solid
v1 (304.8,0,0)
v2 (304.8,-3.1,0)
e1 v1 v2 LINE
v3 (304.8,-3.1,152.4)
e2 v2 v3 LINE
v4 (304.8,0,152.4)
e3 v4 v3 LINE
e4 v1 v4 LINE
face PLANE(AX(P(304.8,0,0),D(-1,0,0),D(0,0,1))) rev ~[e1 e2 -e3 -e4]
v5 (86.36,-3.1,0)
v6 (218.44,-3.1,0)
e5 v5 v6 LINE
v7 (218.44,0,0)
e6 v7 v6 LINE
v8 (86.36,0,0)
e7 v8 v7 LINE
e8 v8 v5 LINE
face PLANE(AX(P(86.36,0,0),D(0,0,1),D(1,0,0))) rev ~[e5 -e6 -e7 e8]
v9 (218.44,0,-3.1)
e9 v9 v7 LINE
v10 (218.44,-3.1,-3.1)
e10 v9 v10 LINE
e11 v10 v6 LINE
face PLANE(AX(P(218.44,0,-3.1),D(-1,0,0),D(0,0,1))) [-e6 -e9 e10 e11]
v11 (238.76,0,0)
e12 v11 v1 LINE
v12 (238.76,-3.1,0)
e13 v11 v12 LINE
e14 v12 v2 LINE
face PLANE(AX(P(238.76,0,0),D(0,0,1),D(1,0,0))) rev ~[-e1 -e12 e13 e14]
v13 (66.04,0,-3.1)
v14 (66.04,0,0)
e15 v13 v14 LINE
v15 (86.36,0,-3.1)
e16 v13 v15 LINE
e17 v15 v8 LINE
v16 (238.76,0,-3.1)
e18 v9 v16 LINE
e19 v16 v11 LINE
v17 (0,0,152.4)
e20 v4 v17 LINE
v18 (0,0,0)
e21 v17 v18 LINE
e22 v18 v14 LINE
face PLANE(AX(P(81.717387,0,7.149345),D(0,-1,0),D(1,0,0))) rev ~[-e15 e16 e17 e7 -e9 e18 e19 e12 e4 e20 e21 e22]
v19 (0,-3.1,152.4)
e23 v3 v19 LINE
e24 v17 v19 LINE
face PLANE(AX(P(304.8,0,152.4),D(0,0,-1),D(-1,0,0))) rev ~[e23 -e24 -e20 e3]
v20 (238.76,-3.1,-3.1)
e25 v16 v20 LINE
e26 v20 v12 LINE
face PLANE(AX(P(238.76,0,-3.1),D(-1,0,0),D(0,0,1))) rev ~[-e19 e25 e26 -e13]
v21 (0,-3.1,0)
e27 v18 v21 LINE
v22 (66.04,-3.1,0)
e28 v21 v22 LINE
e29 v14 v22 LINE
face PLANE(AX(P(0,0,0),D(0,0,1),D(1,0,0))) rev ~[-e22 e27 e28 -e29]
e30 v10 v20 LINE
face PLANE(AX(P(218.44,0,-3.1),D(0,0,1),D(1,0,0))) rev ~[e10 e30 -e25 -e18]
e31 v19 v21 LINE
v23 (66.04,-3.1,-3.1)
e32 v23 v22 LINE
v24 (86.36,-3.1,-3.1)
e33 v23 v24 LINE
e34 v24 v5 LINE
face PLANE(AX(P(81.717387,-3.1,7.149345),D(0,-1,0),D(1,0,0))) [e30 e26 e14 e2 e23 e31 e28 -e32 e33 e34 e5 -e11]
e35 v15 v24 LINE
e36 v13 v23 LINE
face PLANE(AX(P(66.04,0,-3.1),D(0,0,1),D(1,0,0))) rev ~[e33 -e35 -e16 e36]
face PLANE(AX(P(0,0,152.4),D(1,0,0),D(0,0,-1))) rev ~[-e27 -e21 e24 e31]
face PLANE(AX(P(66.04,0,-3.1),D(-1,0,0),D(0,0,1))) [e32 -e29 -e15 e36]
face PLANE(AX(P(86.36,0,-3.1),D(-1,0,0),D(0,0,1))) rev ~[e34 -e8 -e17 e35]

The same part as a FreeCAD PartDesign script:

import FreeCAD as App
import Part
import Sketcher
Q = App.Units.Quantity

doc = App.newDocument("Part")
body = doc.addObject("PartDesign::Body", "Body")

sketch1 = body.newObject("Sketcher::SketchObject", "Sketch")
sketch1.AttachmentSupport = (doc.getObject("XZ_Plane"), [""])
sketch1.MapMode = "FlatFace"
sketch1.addGeometry([
    Part.LineSegment(App.Vector(0, 0, 0), App.Vector(66.04, 0, 0)),
    Part.LineSegment(App.Vector(66.04, 0, 0), App.Vector(66.04, -3.1, 0)),
    Part.LineSegment(App.Vector(66.04, -3.1, 0), App.Vector(86.36, -3.1, 0)),
    Part.LineSegment(App.Vector(86.36, -3.1, 0), App.Vector(86.36, 0, 0)),
    Part.LineSegment(App.Vector(86.36, 0, 0), App.Vector(218.44, 0, 0)),
    Part.LineSegment(App.Vector(218.44, 0, 0), App.Vector(218.44, -3.1, 0)),
    Part.LineSegment(App.Vector(218.44, -3.1, 0), App.Vector(238.76, -3.1, 0)),
    Part.LineSegment(App.Vector(238.76, -3.1, 0), App.Vector(238.76, 0, 0)),
    Part.LineSegment(App.Vector(238.76, 0, 0), App.Vector(304.8, 0, 0)),
    Part.LineSegment(App.Vector(304.8, 0, 0), App.Vector(304.8, 152.4, 0)),
    Part.LineSegment(App.Vector(304.8, 152.4, 0), App.Vector(0, 152.4, 0)),
    Part.LineSegment(App.Vector(0, 152.4, 0), App.Vector(0, 0, 0)),
], False)
sketch1.addConstraint([
    Sketcher.Constraint("Coincident", 0, 2, 1, 1),
    Sketcher.Constraint("Coincident", 1, 2, 2, 1),
    Sketcher.Constraint("Coincident", 2, 2, 3, 1),
    Sketcher.Constraint("Coincident", 3, 2, 4, 1),
    Sketcher.Constraint("Coincident", 4, 2, 5, 1),
    Sketcher.Constraint("Coincident", 5, 2, 6, 1),
    Sketcher.Constraint("Coincident", 6, 2, 7, 1),
    Sketcher.Constraint("Coincident", 7, 2, 8, 1),
    Sketcher.Constraint("Coincident", 8, 2, 9, 1),
    Sketcher.Constraint("Coincident", 9, 2, 10, 1),
    Sketcher.Constraint("Coincident", 10, 2, 11, 1),
    Sketcher.Constraint("Coincident", 11, 2, 0, 1),
    Sketcher.Constraint("Horizontal", 0),
    Sketcher.Constraint("Vertical", 1),
    Sketcher.Constraint("Horizontal", 2),
    Sketcher.Constraint("Vertical", 3),
    Sketcher.Constraint("Horizontal", 4),
    Sketcher.Constraint("Vertical", 5),
    Sketcher.Constraint("Horizontal", 6),
    Sketcher.Constraint("Vertical", 7),
    Sketcher.Constraint("Horizontal", 8),
    Sketcher.Constraint("Vertical", 9),
    Sketcher.Constraint("Horizontal", 10),
    Sketcher.Constraint("Vertical", 11),
    Sketcher.Constraint("Coincident", 11, 2, -1, 1),
    Sketcher.Constraint("PointOnObject", 3, 2, -1),
    Sketcher.Constraint("PointOnObject", 7, 2, -1),
    Sketcher.Constraint("Horizontal", 2, 2, 5, 2),
    Sketcher.Constraint("Equal", 2, 6),
    Sketcher.Constraint("Equal", 0, 8),
    Sketcher.Constraint("DistanceX", 10, 2, 10, 1, Q("12 in")),
    Sketcher.Constraint("DistanceY", 9, 1, 9, 2, Q("6 in")),
    Sketcher.Constraint("DistanceX", 0, 1, 0, 2, Q("2.6 in")),
    Sketcher.Constraint("DistanceX", 2, 1, 2, 2, Q("0.8 in")),
    Sketcher.Constraint("DistanceY", 1, 2, 1, 1, 3.1),
])
pad1 = body.newObject("PartDesign::Pad", "Pad")
pad1.Profile = sketch1
pad1.Length = 3.1

doc.recompute()
